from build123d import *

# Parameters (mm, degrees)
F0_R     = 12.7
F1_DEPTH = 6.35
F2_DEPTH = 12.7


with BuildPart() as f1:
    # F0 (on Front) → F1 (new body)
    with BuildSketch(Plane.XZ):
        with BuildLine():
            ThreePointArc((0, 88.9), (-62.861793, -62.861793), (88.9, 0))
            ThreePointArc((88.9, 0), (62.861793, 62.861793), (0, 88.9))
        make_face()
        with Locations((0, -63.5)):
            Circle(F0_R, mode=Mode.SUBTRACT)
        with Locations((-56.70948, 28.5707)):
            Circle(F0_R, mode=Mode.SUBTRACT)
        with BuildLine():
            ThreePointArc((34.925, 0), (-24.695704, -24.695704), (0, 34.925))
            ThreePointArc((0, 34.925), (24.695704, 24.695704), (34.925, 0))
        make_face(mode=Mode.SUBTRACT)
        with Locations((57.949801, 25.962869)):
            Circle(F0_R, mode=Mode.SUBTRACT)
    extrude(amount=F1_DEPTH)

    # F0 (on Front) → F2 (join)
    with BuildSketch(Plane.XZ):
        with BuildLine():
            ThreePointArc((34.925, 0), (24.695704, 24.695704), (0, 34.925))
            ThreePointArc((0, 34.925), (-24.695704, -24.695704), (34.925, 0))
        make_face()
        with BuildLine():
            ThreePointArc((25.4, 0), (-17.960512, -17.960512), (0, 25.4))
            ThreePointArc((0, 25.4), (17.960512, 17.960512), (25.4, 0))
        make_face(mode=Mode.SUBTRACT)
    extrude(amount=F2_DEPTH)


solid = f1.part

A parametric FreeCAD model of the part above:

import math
import FreeCAD as App
import Part
import Sketcher
from FreeCAD import Vector
Q = App.Units.Quantity

doc = App.newDocument("Part")
body = doc.addObject("PartDesign::Body", "Body")

sketch1 = body.newObject("Sketcher::SketchObject", "Sketch")
sketch1.AttachmentSupport = (doc.getObject("XZ_Plane"), [""])
sketch1.MapMode = "FlatFace"
sketch1.addGeometry([
    Part.ArcOfCircle(Part.Circle(Vector(0, 0, 0), Vector(0, 0, 1), 89), math.radians(90), math.radians(360)),
    Part.ArcOfCircle(Part.Circle(Vector(0, 0, 0), Vector(0, 0, 1), 89), math.radians(0), math.radians(90)),
    Part.Circle(Vector(0, -64, 0), Vector(0, 0, 1), 13),
    Part.ArcOfCircle(Part.Circle(Vector(0, 0, 0), Vector(0, 0, 1), 35), math.radians(0), math.radians(90)),
    Part.ArcOfCircle(Part.Circle(Vector(0, 0, 0), Vector(0, 0, 1), 35), math.radians(90), math.radians(360)),
    Part.Circle(Vector(-57, 29, 0), Vector(0, 0, 1), 13),
    Part.Circle(Vector(58, 26, 0), Vector(0, 0, 1), 13),
], False)
sketch1.addConstraint([
    Sketcher.Constraint("Tangent", 0, 1, 1, 2),
    Sketcher.Constraint("Coincident", 1, 1, 0, 2),
    Sketcher.Constraint("Tangent", 3, 1, 4, 2),
    Sketcher.Constraint("Coincident", 4, 1, 3, 2),
    Sketcher.Constraint("Coincident", 0, 3, -1, 1),
    Sketcher.Constraint("Coincident", 3, 3, -1, 1),
    Sketcher.Constraint("Equal", 2, 5),
    Sketcher.Constraint("Equal", 5, 6),
    Sketcher.Constraint("PointOnObject", 2, 3, -2),
    Sketcher.Constraint("PointOnObject", 0, 1, -2),
    Sketcher.Constraint("PointOnObject", 1, 1, -1),
    Sketcher.Constraint("PointOnObject", 3, 1, -1),
    Sketcher.Constraint("PointOnObject", 4, 1, -2),
    Sketcher.Constraint("Diameter", 2, Q("1 in")),
    Sketcher.Constraint("Radius", 0, Q("3.5 in")),
    Sketcher.Constraint("Radius", 3, Q("1.375 in")),
    Sketcher.Constraint("DistanceY", 2, 3, -1, 1, Q("2.5 in")),
    Sketcher.Constraint("DistanceY", -1, 1, 5, 3, Q("28.5707 mm")),
    Sketcher.Constraint("DistanceX", -1, 1, 6, 3, Q("57.949801 mm")),
    Sketcher.Constraint("DistanceX", 5, 3, -1, 1, Q("56.70948 mm")),
    Sketcher.Constraint("DistanceY", -1, 1, 6, 3, Q("25.962869 mm")),
])
pad1 = body.newObject("PartDesign::Pad", "Pad")
pad1.Profile = sketch1
pad1.Length = Q("0.25 in")

sketch2 = body.newObject("Sketcher::SketchObject", "Sketch001")
sketch2.AttachmentSupport = (doc.getObject("XZ_Plane"), [""])
sketch2.MapMode = "FlatFace"
sketch2.addGeometry([
    Part.ArcOfCircle(Part.Circle(Vector(0, 0, 0), Vector(0, 0, 1), 35), math.radians(0), math.radians(90)),
    Part.ArcOfCircle(Part.Circle(Vector(0, 0, 0), Vector(0, 0, 1), 35), math.radians(90), math.radians(360)),
    Part.ArcOfCircle(Part.Circle(Vector(0, 0, 0), Vector(0, 0, 1), 25), math.radians(0), math.radians(90)),
    Part.ArcOfCircle(Part.Circle(Vector(0, 0, 0), Vector(0, 0, 1), 25), math.radians(90), math.radians(360)),
], False)
sketch2.addConstraint([
    Sketcher.Constraint("Tangent", 0, 1, 1, 2),
    Sketcher.Constraint("Coincident", 1, 1, 0, 2),
    Sketcher.Constraint("Tangent", 2, 1, 3, 2),
    Sketcher.Constraint("Coincident", 3, 1, 2, 2),
    Sketcher.Constraint("Coincident", 0, 3, -1, 1),
    Sketcher.Constraint("Coincident", 2, 3, -1, 1),
    Sketcher.Constraint("PointOnObject", 0, 1, -1),
    Sketcher.Constraint("PointOnObject", 1, 1, -2),
    Sketcher.Constraint("PointOnObject", 2, 1, -1),
    Sketcher.Constraint("PointOnObject", 3, 1, -2),
    Sketcher.Constraint("Radius", 2, Q("1 in")),
    Sketcher.Constraint("Radius", 0, Q("1.375 in")),
])
pad2 = body.newObject("PartDesign::Pad", "Pad001")
pad2.Profile = sketch2
pad2.Length = Q("0.5 in")

doc.recompute()
